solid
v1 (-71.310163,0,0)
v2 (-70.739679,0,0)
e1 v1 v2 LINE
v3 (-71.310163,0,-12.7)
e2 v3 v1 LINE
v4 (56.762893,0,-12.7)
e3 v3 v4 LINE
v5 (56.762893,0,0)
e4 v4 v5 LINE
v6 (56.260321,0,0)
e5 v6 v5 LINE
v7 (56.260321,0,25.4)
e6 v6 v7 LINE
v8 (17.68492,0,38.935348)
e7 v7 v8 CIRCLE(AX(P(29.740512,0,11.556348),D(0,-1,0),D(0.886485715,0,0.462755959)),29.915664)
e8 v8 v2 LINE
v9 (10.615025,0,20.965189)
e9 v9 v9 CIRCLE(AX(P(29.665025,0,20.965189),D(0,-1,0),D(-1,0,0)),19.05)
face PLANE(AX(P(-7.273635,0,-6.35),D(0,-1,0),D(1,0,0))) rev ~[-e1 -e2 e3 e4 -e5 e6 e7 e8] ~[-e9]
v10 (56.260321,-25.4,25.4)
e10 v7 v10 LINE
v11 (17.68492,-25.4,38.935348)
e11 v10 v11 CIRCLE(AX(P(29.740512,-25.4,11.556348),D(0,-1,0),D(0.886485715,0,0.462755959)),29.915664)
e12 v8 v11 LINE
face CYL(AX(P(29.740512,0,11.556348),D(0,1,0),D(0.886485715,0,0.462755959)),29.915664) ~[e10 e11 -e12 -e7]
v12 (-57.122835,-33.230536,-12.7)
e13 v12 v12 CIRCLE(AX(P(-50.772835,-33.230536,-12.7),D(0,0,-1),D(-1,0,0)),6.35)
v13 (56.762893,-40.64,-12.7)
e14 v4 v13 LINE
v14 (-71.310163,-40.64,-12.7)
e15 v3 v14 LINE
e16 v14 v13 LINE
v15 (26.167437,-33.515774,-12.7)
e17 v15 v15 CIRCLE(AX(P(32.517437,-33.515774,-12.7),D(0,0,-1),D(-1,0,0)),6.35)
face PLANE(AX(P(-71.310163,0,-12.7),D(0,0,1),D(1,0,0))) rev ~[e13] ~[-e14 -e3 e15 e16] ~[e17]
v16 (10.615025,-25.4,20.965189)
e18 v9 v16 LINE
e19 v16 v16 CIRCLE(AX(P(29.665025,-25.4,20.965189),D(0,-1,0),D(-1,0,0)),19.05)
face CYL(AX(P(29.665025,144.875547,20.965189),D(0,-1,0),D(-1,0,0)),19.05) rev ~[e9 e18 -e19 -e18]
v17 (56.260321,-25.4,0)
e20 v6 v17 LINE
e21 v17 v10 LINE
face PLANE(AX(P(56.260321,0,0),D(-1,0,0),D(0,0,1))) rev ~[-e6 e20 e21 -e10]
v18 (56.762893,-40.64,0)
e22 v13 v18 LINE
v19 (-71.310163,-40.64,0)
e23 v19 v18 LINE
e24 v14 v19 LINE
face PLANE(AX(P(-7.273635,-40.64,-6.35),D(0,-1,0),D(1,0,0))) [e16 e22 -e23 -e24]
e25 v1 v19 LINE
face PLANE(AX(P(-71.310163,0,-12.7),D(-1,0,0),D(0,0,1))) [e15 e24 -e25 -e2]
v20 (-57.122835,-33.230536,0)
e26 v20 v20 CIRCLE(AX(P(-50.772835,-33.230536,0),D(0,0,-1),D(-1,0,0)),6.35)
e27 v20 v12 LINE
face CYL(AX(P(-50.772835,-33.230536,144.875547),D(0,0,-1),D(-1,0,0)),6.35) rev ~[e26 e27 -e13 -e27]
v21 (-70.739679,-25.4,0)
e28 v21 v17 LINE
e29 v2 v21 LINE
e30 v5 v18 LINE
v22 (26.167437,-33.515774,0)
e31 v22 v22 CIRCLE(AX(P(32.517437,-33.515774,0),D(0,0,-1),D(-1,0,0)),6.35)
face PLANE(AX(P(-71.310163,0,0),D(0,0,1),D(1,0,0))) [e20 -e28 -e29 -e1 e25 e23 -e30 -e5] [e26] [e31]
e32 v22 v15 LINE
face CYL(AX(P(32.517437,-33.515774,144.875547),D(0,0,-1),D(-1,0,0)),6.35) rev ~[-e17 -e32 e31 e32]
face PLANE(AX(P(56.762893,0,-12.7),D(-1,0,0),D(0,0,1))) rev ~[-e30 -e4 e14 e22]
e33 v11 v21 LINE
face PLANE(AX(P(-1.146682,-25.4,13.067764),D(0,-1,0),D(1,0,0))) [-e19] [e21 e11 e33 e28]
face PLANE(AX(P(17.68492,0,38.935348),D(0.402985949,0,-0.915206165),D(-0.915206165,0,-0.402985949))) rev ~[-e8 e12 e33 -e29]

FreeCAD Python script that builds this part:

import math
import FreeCAD as App
import Part
import Sketcher
Q = App.Units.Quantity

doc = App.newDocument("Part")
params = doc.addObject("Spreadsheet::Sheet", "Params")
for row, (alias, value) in enumerate([
    ("sketch1_width", "5 in"),
    ("sketch1_height", "1 in"),
    ("pad1_length", "1 in"),
    ("sketch2_height", "0.5 in"),
    ("pad2_length", "1.6 in"),
    ("sketch3_diameter", "1.5 in"),
    ("hole_diameter", "1.5 in"),
    ("sketch4_diameter", "0.5 in"),
    ("hole2_diameter", "0.5 in"),
    ("sketch5_diameter", "0.5 in"),
    ("hole3_diameter", "0.5 in"),
], start=1):
    params.set(f"A{row}", alias)
    params.set(f"B{row}", "=" + value)
    params.setAlias(f"B{row}", alias)

body = doc.addObject("PartDesign::Body", "Body")

# Sketch on XZ plane
sketch1 = doc.addObject("Sketcher::SketchObject", "Sketch")
body.addObject(sketch1)
sketch1.AttachmentSupport = (doc.XZ_Plane, [""])
sketch1.MapMode = "FlatFace"
sketch1.addGeometry([
    Part.LineSegment(App.Vector(17.68492, 38.935348, 0), App.Vector(-70.739679, 0, 0)),
    Part.LineSegment(App.Vector(-70.739679, 0, 0), App.Vector(56.260321, 0, 0)),
    Part.LineSegment(App.Vector(56.260321, 0, 0), App.Vector(56.260321, 25.4, 0)),
    Part.ArcOfCircle(Part.Circle(App.Vector(29.740512, 11.556348, 0), App.Vector(0, 0, 1), 29.915664), math.radians(27.565088), math.radians(113.764978)),
], False)
sketch1.addConstraint([
    Sketcher.Constraint("Coincident", 0, 2, 1, 1),
    Sketcher.Constraint("Coincident", 1, 2, 2, 1),
    Sketcher.Constraint("Coincident", 2, 2, 3, 1),
    Sketcher.Constraint("Tangent", 3, 2, 0, 1),
    Sketcher.Constraint("Horizontal", 1),
    Sketcher.Constraint("Vertical", 2),
    Sketcher.Constraint("PointOnObject", 0, 2, -1),
    Sketcher.Constraint("DistanceX", 1, 1, 1, 2, Q("5 in")),
    Sketcher.Constraint("DistanceY", 2, 1, 2, 2, Q("1 in")),
    Sketcher.Constraint("Radius", 3, Q("29.915664 mm")),
    Sketcher.Constraint("DistanceY", 3, 3, 3, 2, Q("27.379 mm")),
    Sketcher.Constraint("DistanceX", 0, 2, -1, 1, Q("70.739679 mm")),
])
sketch1.setExpression("Constraints[7]", "Params.sketch1_width")
sketch1.setExpression("Constraints[8]", "Params.sketch1_height")
pad1 = doc.addObject("PartDesign::Pad", "Pad")
body.addObject(pad1)
pad1.Profile = sketch1
pad1.setExpression("Length", "Params.pad1_length")

# Sketch on XZ plane
sketch2 = doc.addObject("Sketcher::SketchObject", "Sketch001")
body.addObject(sketch2)
sketch2.AttachmentSupport = (doc.XZ_Plane, [""])
sketch2.MapMode = "FlatFace"
sketch2.addGeometry([
    Part.LineSegment(App.Vector(-71.310163, 0, 0), App.Vector(-71.310163, -12.7, 0)),
    Part.LineSegment(App.Vector(-71.310163, -12.7, 0), App.Vector(56.762893, -12.7, 0)),
    Part.LineSegment(App.Vector(56.762893, -12.7, 0), App.Vector(56.762893, 0, 0)),
    Part.LineSegment(App.Vector(56.762893, 0, 0), App.Vector(-71.310163, 0, 0)),
], False)
sketch2.addConstraint([
    Sketcher.Constraint("Coincident", 0, 2, 1, 1),
    Sketcher.Constraint("Coincident", 1, 2, 2, 1),
    Sketcher.Constraint("Coincident", 2, 2, 3, 1),
    Sketcher.Constraint("Coincident", 3, 2, 0, 1),
    Sketcher.Constraint("Vertical", 0),
    Sketcher.Constraint("Horizontal", 1),
    Sketcher.Constraint("Vertical", 2),
    Sketcher.Constraint("Horizontal", 3),
    Sketcher.Constraint("PointOnObject", 2, 2, -1),
    Sketcher.Constraint("DistanceY", 0, 2, 0, 1, Q("0.5 in")),
    Sketcher.Constraint("DistanceX", 1, 1, 1, 2, Q("128.073055 mm")),
    Sketcher.Constraint("DistanceX", 0, 2, -1, 1, Q("71.310163 mm")),
])
sketch2.setExpression("Constraints[9]", "Params.sketch2_height")
pad2 = doc.addObject("PartDesign::Pad", "Pad001")
body.addObject(pad2)
pad2.Profile = sketch2
pad2.setExpression("Length", "Params.pad2_length")

# Sketch on XZ plane
sketch3 = doc.addObject("Sketcher::SketchObject", "Sketch002")
body.addObject(sketch3)
sketch3.AttachmentSupport = (doc.XZ_Plane, [""])
sketch3.MapMode = "FlatFace"
sketch3.addGeometry(Part.Circle(App.Vector(29.665025, 20.965189, 0), App.Vector(0, 0, 1), 19.05), False)
sketch3.addConstraint([
    Sketcher.Constraint("Diameter", 0, Q("1.5 in")),
    Sketcher.Constraint("DistanceY", -1, 1, 0, 3, Q("20.965189 mm")),
    Sketcher.Constraint("DistanceX", -1, 1, 0, 3, Q("29.665025 mm")),
])
sketch3.setExpression("Constraints[0]", "Params.sketch3_diameter")
doc.recompute()
hole = doc.addObject("PartDesign::Hole", "Hole")
body.addObject(hole)
hole.Profile = sketch3
hole.ThreadType = "None"
hole.setExpression("Diameter", "Params.hole_diameter")
hole.DepthType = "ThroughAll"
hole.Reversed = True

# Sketch on XY plane
sketch4 = doc.addObject("Sketcher::SketchObject", "Sketch003")
body.addObject(sketch4)
sketch4.AttachmentSupport = (doc.XY_Plane, [""])
sketch4.MapMode = "FlatFace"
sketch4.addGeometry(Part.Circle(App.Vector(-50.772835, -33.230536, 0), App.Vector(0, 0, 1), 6.35), False)
sketch4.addConstraint([
    Sketcher.Constraint("Diameter", 0, Q("0.5 in")),
    Sketcher.Constraint("DistanceX", 0, 3, -1, 1, Q("50.772835 mm")),
    Sketcher.Constraint("DistanceY", 0, 3, -1, 1, Q("33.230536 mm")),
])
sketch4.setExpression("Constraints[0]", "Params.sketch4_diameter")
doc.recompute()
hole2 = doc.addObject("PartDesign::Hole", "Hole001")
body.addObject(hole2)
hole2.Profile = sketch4
hole2.ThreadType = "None"
hole2.setExpression("Diameter", "Params.hole2_diameter")
hole2.DepthType = "ThroughAll"

# Sketch on XY plane
sketch5 = doc.addObject("Sketcher::SketchObject", "Sketch004")
body.addObject(sketch5)
sketch5.AttachmentSupport = (doc.XY_Plane, [""])
sketch5.MapMode = "FlatFace"
sketch5.addGeometry(Part.Circle(App.Vector(32.517437, -33.515774, 0), App.Vector(0, 0, 1), 6.35), False)
sketch5.addConstraint([
    Sketcher.Constraint("Diameter", 0, Q("0.5 in")),
    Sketcher.Constraint("DistanceX", -1, 1, 0, 3, Q("32.517437 mm")),
    Sketcher.Constraint("DistanceY", 0, 3, -1, 1, Q("33.515774 mm")),
])
sketch5.setExpression("Constraints[0]", "Params.sketch5_diameter")
doc.recompute()
hole3 = doc.addObject("PartDesign::Hole", "Hole002")
body.addObject(hole3)
hole3.Profile = sketch5
hole3.ThreadType = "None"
hole3.setExpression("Diameter", "Params.hole3_diameter")
hole3.DepthType = "ThroughAll"

doc.recompute()
